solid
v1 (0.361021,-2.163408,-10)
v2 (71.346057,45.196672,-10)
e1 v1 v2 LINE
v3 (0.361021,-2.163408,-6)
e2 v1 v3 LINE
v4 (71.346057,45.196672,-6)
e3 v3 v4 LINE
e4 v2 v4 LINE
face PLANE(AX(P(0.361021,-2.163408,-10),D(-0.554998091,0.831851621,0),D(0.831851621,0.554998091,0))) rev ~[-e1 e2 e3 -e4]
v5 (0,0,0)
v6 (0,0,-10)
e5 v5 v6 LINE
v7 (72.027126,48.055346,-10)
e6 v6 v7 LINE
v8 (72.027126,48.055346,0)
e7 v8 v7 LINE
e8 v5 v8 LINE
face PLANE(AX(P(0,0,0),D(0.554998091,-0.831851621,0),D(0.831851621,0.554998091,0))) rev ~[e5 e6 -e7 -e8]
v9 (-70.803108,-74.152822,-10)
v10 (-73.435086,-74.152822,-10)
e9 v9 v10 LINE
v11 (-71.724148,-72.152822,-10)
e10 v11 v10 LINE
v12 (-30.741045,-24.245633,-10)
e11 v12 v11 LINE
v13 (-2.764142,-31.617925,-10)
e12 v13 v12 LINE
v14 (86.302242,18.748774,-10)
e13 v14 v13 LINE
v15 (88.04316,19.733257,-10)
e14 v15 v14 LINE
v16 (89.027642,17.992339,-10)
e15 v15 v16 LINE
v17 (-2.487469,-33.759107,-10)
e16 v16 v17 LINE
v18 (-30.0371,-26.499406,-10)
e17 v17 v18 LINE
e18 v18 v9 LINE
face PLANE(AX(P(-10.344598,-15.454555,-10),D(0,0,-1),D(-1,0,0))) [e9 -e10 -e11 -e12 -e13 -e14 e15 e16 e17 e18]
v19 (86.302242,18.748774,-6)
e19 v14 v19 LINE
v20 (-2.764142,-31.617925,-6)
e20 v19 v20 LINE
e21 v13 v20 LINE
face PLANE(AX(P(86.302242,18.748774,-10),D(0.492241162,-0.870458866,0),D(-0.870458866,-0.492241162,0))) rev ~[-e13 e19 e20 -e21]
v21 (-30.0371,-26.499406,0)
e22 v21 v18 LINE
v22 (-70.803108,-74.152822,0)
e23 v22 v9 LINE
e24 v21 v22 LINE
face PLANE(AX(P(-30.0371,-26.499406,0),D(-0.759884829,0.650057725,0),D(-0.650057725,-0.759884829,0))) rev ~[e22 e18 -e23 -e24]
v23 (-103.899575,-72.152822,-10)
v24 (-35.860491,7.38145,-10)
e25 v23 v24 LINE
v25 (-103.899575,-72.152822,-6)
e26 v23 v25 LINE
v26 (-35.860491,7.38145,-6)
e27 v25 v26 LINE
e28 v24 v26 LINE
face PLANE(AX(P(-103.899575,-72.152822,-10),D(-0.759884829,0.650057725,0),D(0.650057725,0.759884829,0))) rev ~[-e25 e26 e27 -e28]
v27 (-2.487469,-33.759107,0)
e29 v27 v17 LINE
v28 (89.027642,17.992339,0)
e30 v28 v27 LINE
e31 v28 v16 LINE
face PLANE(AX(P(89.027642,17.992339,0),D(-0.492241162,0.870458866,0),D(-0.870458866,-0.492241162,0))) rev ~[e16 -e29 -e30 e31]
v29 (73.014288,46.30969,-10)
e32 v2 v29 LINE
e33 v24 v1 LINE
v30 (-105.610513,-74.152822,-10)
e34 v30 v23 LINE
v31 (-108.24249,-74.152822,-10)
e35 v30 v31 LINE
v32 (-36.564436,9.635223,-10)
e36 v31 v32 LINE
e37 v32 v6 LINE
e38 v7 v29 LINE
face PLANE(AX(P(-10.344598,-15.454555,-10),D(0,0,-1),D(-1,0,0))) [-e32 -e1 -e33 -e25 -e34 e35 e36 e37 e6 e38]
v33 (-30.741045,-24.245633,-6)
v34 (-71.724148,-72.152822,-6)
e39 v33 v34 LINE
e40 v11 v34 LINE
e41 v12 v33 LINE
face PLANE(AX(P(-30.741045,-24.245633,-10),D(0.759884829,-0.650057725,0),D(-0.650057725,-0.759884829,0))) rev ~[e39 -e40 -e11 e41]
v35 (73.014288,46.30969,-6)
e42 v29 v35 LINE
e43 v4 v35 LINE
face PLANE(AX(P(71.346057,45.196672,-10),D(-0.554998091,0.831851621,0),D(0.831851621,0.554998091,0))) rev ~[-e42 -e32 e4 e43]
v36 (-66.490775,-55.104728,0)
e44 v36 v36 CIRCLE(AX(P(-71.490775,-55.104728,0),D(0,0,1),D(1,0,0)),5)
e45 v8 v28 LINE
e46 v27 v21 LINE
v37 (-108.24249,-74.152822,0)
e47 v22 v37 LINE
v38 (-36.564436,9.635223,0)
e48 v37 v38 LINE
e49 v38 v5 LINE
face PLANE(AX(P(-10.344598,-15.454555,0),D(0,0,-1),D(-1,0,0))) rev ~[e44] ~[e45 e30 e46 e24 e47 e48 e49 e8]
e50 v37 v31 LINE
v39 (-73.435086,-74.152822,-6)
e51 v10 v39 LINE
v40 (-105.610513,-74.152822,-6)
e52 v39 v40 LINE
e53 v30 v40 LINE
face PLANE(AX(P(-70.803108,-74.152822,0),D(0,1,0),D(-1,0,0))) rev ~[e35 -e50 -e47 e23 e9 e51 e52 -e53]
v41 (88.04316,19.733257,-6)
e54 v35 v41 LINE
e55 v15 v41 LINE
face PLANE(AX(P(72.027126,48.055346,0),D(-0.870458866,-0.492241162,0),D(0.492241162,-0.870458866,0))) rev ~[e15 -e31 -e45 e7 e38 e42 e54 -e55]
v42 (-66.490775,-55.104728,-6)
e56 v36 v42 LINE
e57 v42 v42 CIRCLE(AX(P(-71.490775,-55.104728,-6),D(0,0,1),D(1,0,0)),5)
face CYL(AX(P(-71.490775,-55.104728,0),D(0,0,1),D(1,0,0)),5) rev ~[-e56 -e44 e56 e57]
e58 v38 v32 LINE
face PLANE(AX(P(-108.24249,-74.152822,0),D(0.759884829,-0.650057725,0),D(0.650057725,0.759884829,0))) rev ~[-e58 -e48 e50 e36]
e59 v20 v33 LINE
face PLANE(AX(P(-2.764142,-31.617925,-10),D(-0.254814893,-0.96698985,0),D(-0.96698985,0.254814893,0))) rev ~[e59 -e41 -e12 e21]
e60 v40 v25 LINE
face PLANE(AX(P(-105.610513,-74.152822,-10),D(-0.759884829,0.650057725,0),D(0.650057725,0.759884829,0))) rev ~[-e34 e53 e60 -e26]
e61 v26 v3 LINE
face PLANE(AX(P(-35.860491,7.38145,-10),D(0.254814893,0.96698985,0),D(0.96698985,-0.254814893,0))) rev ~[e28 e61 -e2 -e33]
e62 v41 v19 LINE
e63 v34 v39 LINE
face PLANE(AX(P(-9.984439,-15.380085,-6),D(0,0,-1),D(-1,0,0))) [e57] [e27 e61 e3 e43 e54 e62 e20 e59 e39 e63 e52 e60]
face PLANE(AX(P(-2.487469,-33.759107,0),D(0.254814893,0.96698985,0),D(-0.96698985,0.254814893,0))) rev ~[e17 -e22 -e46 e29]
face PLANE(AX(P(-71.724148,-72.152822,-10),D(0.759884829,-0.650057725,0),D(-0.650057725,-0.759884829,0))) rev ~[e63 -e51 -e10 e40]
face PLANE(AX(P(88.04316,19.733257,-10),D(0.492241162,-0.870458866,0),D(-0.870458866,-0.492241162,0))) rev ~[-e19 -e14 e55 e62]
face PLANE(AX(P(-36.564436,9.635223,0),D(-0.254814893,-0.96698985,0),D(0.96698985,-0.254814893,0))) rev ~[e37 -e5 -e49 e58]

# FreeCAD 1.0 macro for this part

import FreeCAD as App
import Part
import Sketcher
from FreeCAD import Vector
Q = App.Units.Quantity

doc = App.newDocument("Part")
body = doc.addObject("PartDesign::Body", "Body")

# Sketch on XY plane
sketch1 = body.newObject("Sketcher::SketchObject", "Sketch")
sketch1.AttachmentSupport = (doc.getObject("XY_Plane"), [""])
sketch1.MapMode = "FlatFace"
sketch1.addGeometry(Part.LineSegment(Vector(89, 18, 0), Vector(72, 48, 0)), False)
sketch1.addGeometry(Part.LineSegment(Vector(72, 48, 0), Vector(0, 0, 0)), False)
sketch1.addGeometry(Part.LineSegment(Vector(0, 0, 0), Vector(-37, 10, 0)), False)
sketch1.addGeometry(Part.LineSegment(Vector(-37, 10, 0), Vector(-108, -74, 0)), False)
sketch1.addGeometry(Part.LineSegment(Vector(-108, -74, 0), Vector(-71, -74, 0)), False)
sketch1.addGeometry(Part.LineSegment(Vector(-71, -74, 0), Vector(-30, -26, 0)), False)
sketch1.addGeometry(Part.LineSegment(Vector(-30, -26, 0), Vector(-2, -34, 0)), False)
sketch1.addGeometry(Part.LineSegment(Vector(-2, -34, 0), Vector(89, 18, 0)), False)
sketch1.addGeometry(Part.Circle(Vector(-71, -55, 0), Vector(0, 0, 1), 5), False)
sketch1.addConstraint(Sketcher.Constraint("Coincident", 0, 2, 1, 1))
sketch1.addConstraint(Sketcher.Constraint("Coincident", 1, 2, 2, 1))
sketch1.addConstraint(Sketcher.Constraint("Coincident", 2, 2, 3, 1))
sketch1.addConstraint(Sketcher.Constraint("Coincident", 3, 2, 4, 1))
sketch1.addConstraint(Sketcher.Constraint("Coincident", 4, 2, 5, 1))
sketch1.addConstraint(Sketcher.Constraint("Coincident", 5, 2, 6, 1))
sketch1.addConstraint(Sketcher.Constraint("Coincident", 6, 2, 7, 1))
sketch1.addConstraint(Sketcher.Constraint("Coincident", 7, 2, 0, 1))
sketch1.addConstraint(Sketcher.Constraint("Horizontal", 4))
sketch1.addConstraint(Sketcher.Constraint("Coincident", 1, 2, -1, 1))
sketch1.addConstraint(Sketcher.Constraint("Parallel", 3, 5))
sketch1.addConstraint(Sketcher.Constraint("Parallel", 2, 6))
sketch1.addConstraint(Sketcher.Constraint("Perpendicular", 0, 7))
sketch1.addConstraint(Sketcher.Constraint("Diameter", 8, Q("10 mm")))
sketch1.addConstraint(Sketcher.Constraint("DistanceX", 5, 2, -1, 1, Q("30.0371 mm")))
sketch1.addConstraint(Sketcher.Constraint("DistanceX", 8, 3, 0, 2, Q("143.517901 mm")))
sketch1.addConstraint(Sketcher.Constraint("DistanceY", 6, 2, 5, 2, Q("7.2597 mm")))
sketch1.addConstraint(Sketcher.Constraint("Distance", 7, Q("105.134331 mm")))
sketch1.addConstraint(Sketcher.Constraint("DistanceX", 4, 1, 4, 2, Q("37.439382 mm")))
sketch1.addConstraint(Sketcher.Constraint("DistanceY", 8, 3, -1, 1, Q("55.104728 mm")))
sketch1.addConstraint(Sketcher.Constraint("DistanceX", 3, 2, -1, 1, Q("108.24249 mm")))
sketch1.addConstraint(Sketcher.Constraint("DistanceX", 6, 2, -1, 1, Q("2.487469 mm")))
sketch1.addConstraint(Sketcher.Constraint("DistanceY", -1, 1, 7, 2, Q("17.992339 mm")))
sketch1.addConstraint(Sketcher.Constraint("DistanceX", 8, 3, 2, 2, Q("34.926339 mm")))
sketch1.addConstraint(Sketcher.Constraint("DistanceY", 8, 3, 2, 2, Q("64.739951 mm")))
sketch1.addConstraint(Sketcher.Constraint("DistanceY", 3, 2, 0, 2, Q("122.208169 mm")))
pad1 = body.newObject("PartDesign::Pad", "Pad")
pad1.Profile = sketch1
pad1.Length = 10
pad1.Reversed = True

# Sketch on XY plane
sketch2 = body.newObject("Sketcher::SketchObject", "Sketch001")
sketch2.AttachmentSupport = (doc.getObject("XY_Plane"), [""])
sketch2.MapMode = "FlatFace"
sketch2.AttachmentOffset = App.Placement(Vector(0, 0, -10), App.Rotation())
sketch2.addGeometry(Part.LineSegment(Vector(71.346057, 45.196672, 0), Vector(73.014288, 46.30969, 0)), False)
sketch2.addGeometry(Part.LineSegment(Vector(73.014288, 46.30969, 0), Vector(88.04316, 19.733257, 0)), False)
sketch2.addGeometry(Part.LineSegment(Vector(88.04316, 19.733257, 0), Vector(86.302242, 18.748774, 0)), False)
sketch2.addGeometry(Part.LineSegment(Vector(86.302242, 18.748774, 0), Vector(-2.764142, -31.617925, 0)), False)
sketch2.addGeometry(Part.LineSegment(Vector(-2.764142, -31.617925, 0), Vector(-30.741045, -24.245633, 0)), False)
sketch2.addGeometry(Part.LineSegment(Vector(-30.741045, -24.245633, 0), Vector(-71.724148, -72.152822, 0)), False)
sketch2.addGeometry(Part.LineSegment(Vector(-71.724148, -72.152822, 0), Vector(-73.435086, -74.152822, 0)), False)
sketch2.addGeometry(Part.LineSegment(Vector(-73.435086, -74.152822, 0), Vector(-105.610513, -74.152822, 0)), False)
sketch2.addGeometry(Part.LineSegment(Vector(-105.610513, -74.152822, 0), Vector(-103.899575, -72.152822, 0)), False)
sketch2.addGeometry(Part.LineSegment(Vector(-103.899575, -72.152822, 0), Vector(-35.860491, 7.38145, 0)), False)
sketch2.addGeometry(Part.LineSegment(Vector(-35.860491, 7.38145, 0), Vector(0.361021, -2.163408, 0)), False)
sketch2.addGeometry(Part.LineSegment(Vector(0.361021, -2.163408, 0), Vector(71.346057, 45.196672, 0)), False)
sketch2.addConstraint(Sketcher.Constraint("Coincident", 0, 2, 1, 1))
sketch2.addConstraint(Sketcher.Constraint("Coincident", 1, 2, 2, 1))
sketch2.addConstraint(Sketcher.Constraint("Coincident", 2, 2, 3, 1))
sketch2.addConstraint(Sketcher.Constraint("Coincident", 3, 2, 4, 1))
sketch2.addConstraint(Sketcher.Constraint("Coincident", 4, 2, 5, 1))
sketch2.addConstraint(Sketcher.Constraint("Coincident", 5, 2, 6, 1))
sketch2.addConstraint(Sketcher.Constraint("Coincident", 6, 2, 7, 1))
sketch2.addConstraint(Sketcher.Constraint("Coincident", 7, 2, 8, 1))
sketch2.addConstraint(Sketcher.Constraint("Coincident", 8, 2, 9, 1))
sketch2.addConstraint(Sketcher.Constraint("Coincident", 9, 2, 10, 1))
sketch2.addConstraint(Sketcher.Constraint("Coincident", 10, 2, 11, 1))
sketch2.addConstraint(Sketcher.Constraint("Coincident", 11, 2, 0, 1))
sketch2.addConstraint(Sketcher.Constraint("Horizontal", 7))
sketch2.addConstraint(Sketcher.Constraint("Distance", 2, Q("2 mm")))
sketch2.addConstraint(Sketcher.Constraint("DistanceY", 6, 2, 5, 2, Q("2 mm")))
sketch2.addConstraint(Sketcher.Constraint("DistanceY", 7, 2, 8, 2, Q("2 mm")))
sketch2.addConstraint(Sketcher.Constraint("DistanceY", 3, 2, 2, 2, Q("50.3667 mm")))
sketch2.addConstraint(Sketcher.Constraint("DistanceX", 3, 2, 1, 2, Q("90.807302 mm")))
sketch2.addConstraint(Sketcher.Constraint("DistanceY", 2, 2, 11, 2, Q("26.447898 mm")))
sketch2.addConstraint(Sketcher.Constraint("DistanceX", 3, 2, 11, 2, Q("74.110198 mm")))
sketch2.addConstraint(Sketcher.Constraint("Distance", 1, Q("30.531521 mm")))
sketch2.addConstraint(Sketcher.Constraint("Distance", 4, Q("28.931951 mm")))
sketch2.addConstraint(Sketcher.Constraint("Distance", 5, Q("63.045329 mm")))
sketch2.addConstraint(Sketcher.Constraint("Distance", 9, Q("104.666219 mm")))
sketch2.addConstraint(Sketcher.Constraint("Distance", 11, Q("85.333771 mm")))
sketch2.addConstraint(Sketcher.Constraint("DistanceX", 7, 2, 7, 1, Q("32.175427 mm")))
sketch2.addConstraint(Sketcher.Constraint("DistanceX", -1, 1, 0, 2, Q("73.014288 mm")))
sketch2.addConstraint(Sketcher.Constraint("DistanceY", -1, 1, 0, 2, Q("46.30969 mm")))
sketch2.addConstraint(Sketcher.Constraint("DistanceX", -1, 1, 1, 2, Q("88.04316 mm")))
sketch2.addConstraint(Sketcher.Constraint("DistanceX", 5, 2, -1, 1, Q("71.724148 mm")))
sketch2.addConstraint(Sketcher.Constraint("DistanceX", 9, 2, -1, 1, Q("35.860491 mm")))
sketch2.addConstraint(Sketcher.Constraint("DistanceY", -1, 1, 9, 2, Q("7.38145 mm")))
sketch2.addConstraint(Sketcher.Constraint("DistanceX", -1, 1, 10, 2, Q("0.361021 mm")))
sketch2.addConstraint(Sketcher.Constraint("DistanceY", 3, 2, 1, 2, Q("51.351182 mm")))
sketch2.addConstraint(Sketcher.Constraint("DistanceY", 4, 2, 1, 2, Q("43.97889 mm")))
sketch2.addConstraint(Sketcher.Constraint("DistanceX", 6, 2, 4, 2, Q("42.694041 mm")))
pocket1 = body.newObject("PartDesign::Pocket", "Pocket")
pocket1.Profile = sketch2
pocket1.Length = 4
pocket1.Reversed = True

doc.recompute()
